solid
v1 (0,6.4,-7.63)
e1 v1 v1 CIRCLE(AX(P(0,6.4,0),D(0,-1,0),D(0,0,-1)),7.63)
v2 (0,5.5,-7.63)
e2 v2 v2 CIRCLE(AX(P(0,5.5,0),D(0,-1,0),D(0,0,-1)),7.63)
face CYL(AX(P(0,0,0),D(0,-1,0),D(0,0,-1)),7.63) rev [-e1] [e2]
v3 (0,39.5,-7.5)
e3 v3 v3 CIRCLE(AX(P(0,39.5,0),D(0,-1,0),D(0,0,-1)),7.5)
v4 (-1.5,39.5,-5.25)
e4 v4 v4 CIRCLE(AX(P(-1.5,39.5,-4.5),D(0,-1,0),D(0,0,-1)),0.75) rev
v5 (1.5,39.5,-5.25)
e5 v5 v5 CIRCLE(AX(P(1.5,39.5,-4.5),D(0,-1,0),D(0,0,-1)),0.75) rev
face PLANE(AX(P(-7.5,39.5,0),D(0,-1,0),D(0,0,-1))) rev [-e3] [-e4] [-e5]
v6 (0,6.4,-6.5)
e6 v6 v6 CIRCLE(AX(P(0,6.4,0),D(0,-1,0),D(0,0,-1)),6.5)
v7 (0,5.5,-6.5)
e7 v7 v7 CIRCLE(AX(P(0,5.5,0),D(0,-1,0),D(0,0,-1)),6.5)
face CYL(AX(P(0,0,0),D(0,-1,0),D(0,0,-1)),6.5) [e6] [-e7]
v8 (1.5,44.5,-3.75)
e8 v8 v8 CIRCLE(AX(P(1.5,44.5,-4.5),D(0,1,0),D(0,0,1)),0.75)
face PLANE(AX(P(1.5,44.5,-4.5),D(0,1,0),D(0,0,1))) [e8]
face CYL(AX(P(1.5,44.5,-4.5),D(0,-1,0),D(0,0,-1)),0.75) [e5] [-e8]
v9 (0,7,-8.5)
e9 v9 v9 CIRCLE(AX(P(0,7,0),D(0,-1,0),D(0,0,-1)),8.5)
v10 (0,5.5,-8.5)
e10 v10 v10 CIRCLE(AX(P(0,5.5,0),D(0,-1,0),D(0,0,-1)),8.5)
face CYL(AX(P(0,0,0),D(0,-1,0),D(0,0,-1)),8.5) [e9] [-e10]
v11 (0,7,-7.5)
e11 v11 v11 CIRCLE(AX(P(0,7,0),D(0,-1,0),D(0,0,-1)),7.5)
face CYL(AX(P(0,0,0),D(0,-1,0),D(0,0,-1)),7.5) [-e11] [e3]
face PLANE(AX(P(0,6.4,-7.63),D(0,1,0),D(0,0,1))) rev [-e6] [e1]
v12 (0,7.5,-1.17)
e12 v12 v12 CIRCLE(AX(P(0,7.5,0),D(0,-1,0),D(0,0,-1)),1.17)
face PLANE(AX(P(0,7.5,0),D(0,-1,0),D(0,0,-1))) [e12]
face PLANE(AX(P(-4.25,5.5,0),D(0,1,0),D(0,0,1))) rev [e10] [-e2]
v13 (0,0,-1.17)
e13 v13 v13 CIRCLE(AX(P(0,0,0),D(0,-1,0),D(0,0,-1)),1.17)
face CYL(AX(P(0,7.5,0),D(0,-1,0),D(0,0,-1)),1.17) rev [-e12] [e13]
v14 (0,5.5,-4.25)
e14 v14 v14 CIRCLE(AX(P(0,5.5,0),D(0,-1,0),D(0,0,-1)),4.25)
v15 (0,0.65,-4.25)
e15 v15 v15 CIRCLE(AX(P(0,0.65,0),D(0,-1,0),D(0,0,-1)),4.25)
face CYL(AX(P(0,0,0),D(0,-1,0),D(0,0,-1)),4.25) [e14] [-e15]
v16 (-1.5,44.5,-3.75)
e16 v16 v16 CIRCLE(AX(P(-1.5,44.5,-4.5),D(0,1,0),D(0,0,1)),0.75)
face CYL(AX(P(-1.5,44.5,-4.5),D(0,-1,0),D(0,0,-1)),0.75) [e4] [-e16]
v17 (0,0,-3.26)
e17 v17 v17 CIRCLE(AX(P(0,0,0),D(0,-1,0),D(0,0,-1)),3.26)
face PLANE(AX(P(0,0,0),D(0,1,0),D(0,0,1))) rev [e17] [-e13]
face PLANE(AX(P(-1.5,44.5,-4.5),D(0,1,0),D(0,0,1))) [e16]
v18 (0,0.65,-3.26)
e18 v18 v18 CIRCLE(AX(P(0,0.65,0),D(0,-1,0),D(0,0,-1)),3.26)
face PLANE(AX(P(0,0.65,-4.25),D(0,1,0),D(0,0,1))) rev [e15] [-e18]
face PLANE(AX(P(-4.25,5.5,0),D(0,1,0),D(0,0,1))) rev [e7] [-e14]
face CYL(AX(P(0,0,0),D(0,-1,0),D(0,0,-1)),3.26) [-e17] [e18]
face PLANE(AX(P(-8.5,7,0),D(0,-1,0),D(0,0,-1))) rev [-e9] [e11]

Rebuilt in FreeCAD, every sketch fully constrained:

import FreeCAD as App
import Part
import Sketcher
Q = App.Units.Quantity


def add_polygon(sketch, points):
    """Adds a closed chain of lines whose ends are joined by coincident constraints."""
    first, n = sketch.GeometryCount, len(points)
    for a, b in zip(points, points[1:] + points[:1]):
        sketch.addGeometry(Part.LineSegment(App.Vector(*a, 0), App.Vector(*b, 0)), False)
    for i in range(n):
        sketch.addConstraint(Sketcher.Constraint("Coincident", first + i, 2, first + (i + 1) % n, 1))

doc = App.newDocument("Part")
body = doc.addObject("PartDesign::Body", "Body")

sketch1 = body.newObject("Sketcher::SketchObject", "Sketch")
sketch1.AttachmentSupport = (doc.getObject("XY_Plane"), [""])
sketch1.MapMode = "FlatFace"
add_polygon(sketch1, [(-4.25, 0), (0, 0), (0, 39.5), (-7.5, 39.5), (-7.5, 7), (-8.5, 7), (-8.5, 5.5), (-4.25, 5.5)])
sketch1.addConstraint(Sketcher.Constraint("Horizontal", 0))
sketch1.addConstraint(Sketcher.Constraint("Vertical", 1))
sketch1.addConstraint(Sketcher.Constraint("Horizontal", 2))
sketch1.addConstraint(Sketcher.Constraint("Vertical", 3))
sketch1.addConstraint(Sketcher.Constraint("Horizontal", 4))
sketch1.addConstraint(Sketcher.Constraint("Vertical", 5))
sketch1.addConstraint(Sketcher.Constraint("Horizontal", 6))
sketch1.addConstraint(Sketcher.Constraint("Vertical", 7))
sketch1.addConstraint(Sketcher.Constraint("Coincident", 0, 2, -1, 1))
sketch1.addConstraint(Sketcher.Constraint("Equal", 0, 6))
sketch1.addConstraint(Sketcher.Constraint("DistanceX", 4, 2, 4, 1, Q("1 mm")))
sketch1.addConstraint(Sketcher.Constraint("DistanceX", 2, 2, 2, 1, Q("7.5 mm")))
sketch1.addConstraint(Sketcher.Constraint("DistanceY", 1, 1, 1, 2, Q("39.5 mm")))
sketch1.addConstraint(Sketcher.Constraint("DistanceY", 3, 2, 3, 1, Q("32.5 mm")))
sketch1.addConstraint(Sketcher.Constraint("DistanceY", 5, 2, 5, 1, Q("1.5 mm")))
revolution = body.newObject("PartDesign::Revolution", "Revolution")
revolution.Profile = sketch1
revolution.ReferenceAxis = (sketch1, ["V_Axis"])
revolution.Angle = 360

sketch2 = body.newObject("Sketcher::SketchObject", "Sketch001")
sketch2.AttachmentSupport = (doc.getObject("XZ_Plane"), [""])
sketch2.MapMode = "FlatFace"
sketch2.AttachmentOffset = App.Placement(App.Vector(0, 0, -39.5), App.Rotation())
sketch2.addGeometry(Part.Circle(App.Vector(1.5, -4.5, 0), App.Vector(0, 0, 1), 0.75), False)
sketch2.addGeometry(Part.Circle(App.Vector(-1.5, -4.5, 0), App.Vector(0, 0, 1), 0.75), False)
sketch2.addConstraint(Sketcher.Constraint("Equal", 0, 1))
sketch2.addConstraint(Sketcher.Constraint("Symmetric", 0, 3, 1, 3, -2))
sketch2.addConstraint(Sketcher.Constraint("Diameter", 0, Q("1.5 mm")))
sketch2.addConstraint(Sketcher.Constraint("DistanceX", 1, 3, 0, 3, Q("3 mm")))
sketch2.addConstraint(Sketcher.Constraint("DistanceY", 0, 3, -1, 1, Q("4.5 mm")))
pad1 = body.newObject("PartDesign::Pad", "Pad")
pad1.Profile = sketch2
pad1.Length = 5
pad1.Reversed = True

sketch3 = body.newObject("Sketcher::SketchObject", "Sketch002")
sketch3.AttachmentSupport = (doc.getObject("YZ_Plane"), [""])
sketch3.MapMode = "FlatFace"
add_polygon(sketch3, [(0.65, -3.26), (0, -3.26), (0, -4.25), (0.65, -4.25)])
sketch3.addConstraint(Sketcher.Constraint("Horizontal", 0))
sketch3.addConstraint(Sketcher.Constraint("Vertical", 1))
sketch3.addConstraint(Sketcher.Constraint("Horizontal", 2))
sketch3.addConstraint(Sketcher.Constraint("Vertical", 3))
sketch3.addConstraint(Sketcher.Constraint("PointOnObject", 0, 2, -2))
sketch3.addConstraint(Sketcher.Constraint("DistanceX", 0, 2, 0, 1, Q("0.65 mm")))
sketch3.addConstraint(Sketcher.Constraint("DistanceY", 1, 2, 1, 1, Q("0.99 mm")))
sketch3.addConstraint(Sketcher.Constraint("DistanceY", 0, 2, -1, 1, Q("3.26 mm")))
groove = body.newObject("PartDesign::Groove", "Groove")
groove.Profile = sketch3
groove.ReferenceAxis = (sketch3, ["H_Axis"])
groove.Angle = 360

sketch4 = body.newObject("Sketcher::SketchObject", "Sketch003")
sketch4.AttachmentSupport = (doc.getObject("XZ_Plane"), [""])
sketch4.MapMode = "FlatFace"
sketch4.addGeometry(Part.Circle(App.Vector(0, 0, 0), App.Vector(0, 0, 1), 1.17), False)
sketch4.addConstraint(Sketcher.Constraint("Coincident", 0, 3, -1, 1))
sketch4.addConstraint(Sketcher.Constraint("Diameter", 0, Q("2.34 mm")))
pocket1 = body.newObject("PartDesign::Pocket", "Pocket")
pocket1.Profile = sketch4
pocket1.Length = 7.5

sketch5 = body.newObject("Sketcher::SketchObject", "Sketch004")
sketch5.AttachmentSupport = (doc.getObject("YZ_Plane"), [""])
sketch5.MapMode = "FlatFace"
add_polygon(sketch5, [(6.4, -6.5), (5.5, -6.5), (5.5, -7.63), (6.4, -7.63)])
sketch5.addConstraint(Sketcher.Constraint("Horizontal", 0))
sketch5.addConstraint(Sketcher.Constraint("Vertical", 1))
sketch5.addConstraint(Sketcher.Constraint("Horizontal", 2))
sketch5.addConstraint(Sketcher.Constraint("Vertical", 3))
sketch5.addConstraint(Sketcher.Constraint("DistanceX", 0, 2, 0, 1, Q("0.9 mm")))
sketch5.addConstraint(Sketcher.Constraint("DistanceY", 1, 2, 1, 1, Q("1.13 mm")))
sketch5.addConstraint(Sketcher.Constraint("DistanceX", -1, 1, 0, 2, Q("5.5 mm")))
sketch5.addConstraint(Sketcher.Constraint("DistanceY", 0, 2, -1, 1, Q("6.5 mm")))
groove2 = body.newObject("PartDesign::Groove", "Groove001")
groove2.Profile = sketch5
groove2.ReferenceAxis = (sketch5, ["H_Axis"])
groove2.Angle = 360

doc.recompute()
